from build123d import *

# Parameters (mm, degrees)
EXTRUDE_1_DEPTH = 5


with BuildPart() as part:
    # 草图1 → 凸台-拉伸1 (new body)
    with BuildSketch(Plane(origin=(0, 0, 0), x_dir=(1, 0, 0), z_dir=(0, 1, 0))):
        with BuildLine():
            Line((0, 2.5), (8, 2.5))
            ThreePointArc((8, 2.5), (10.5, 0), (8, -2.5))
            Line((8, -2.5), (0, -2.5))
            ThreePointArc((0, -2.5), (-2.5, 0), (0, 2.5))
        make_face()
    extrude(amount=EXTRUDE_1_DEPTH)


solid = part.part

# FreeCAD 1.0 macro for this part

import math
import FreeCAD as App
import Part
import Sketcher
from FreeCAD import Vector

doc = App.newDocument("Part")
body = doc.addObject("PartDesign::Body", "Body")

# Sketch on XZ plane
sketch1 = body.newObject("Sketcher::SketchObject", "Sketch")
sketch1.AttachmentSupport = (doc.getObject("XZ_Plane"), [""])
sketch1.MapMode = "FlatFace"
sketch1.addGeometry(Part.LineSegment(Vector(8, -2.5, 0), Vector(0, -2.5, 0)), False)
sketch1.addGeometry(Part.ArcOfCircle(Part.Circle(Vector(0, 0, 0), Vector(0, 0, 1), 2.5), math.radians(90), math.radians(270)), False)
sketch1.addGeometry(Part.LineSegment(Vector(0, 2.5, 0), Vector(8, 2.5, 0)), False)
sketch1.addGeometry(Part.ArcOfCircle(Part.Circle(Vector(8, 0, 0), Vector(0, 0, 1), 2.5), math.radians(-90), math.radians(90)), False)
sketch1.addConstraint(Sketcher.Constraint("Tangent", 0, 2, 1, 2))
sketch1.addConstraint(Sketcher.Constraint("Tangent", 1, 1, 2, 1))
sketch1.addConstraint(Sketcher.Constraint("Tangent", 2, 2, 3, 2))
sketch1.addConstraint(Sketcher.Constraint("Tangent", 3, 1, 0, 1))
sketch1.addConstraint(Sketcher.Constraint("Horizontal", 0))
sketch1.addConstraint(Sketcher.Constraint("Horizontal", 2))
sketch1.addConstraint(Sketcher.Constraint("Coincident", 1, 3, -1, 1))
sketch1.addConstraint(Sketcher.Constraint("Radius", 1, 2.5))
sketch1.addConstraint(Sketcher.Constraint("DistanceX", 0, 2, 0, 1, 8.0))
pad1 = body.newObject("PartDesign::Pad", "Pad")
pad1.Profile = sketch1
pad1.Length = 5
pad1.Reversed = True

doc.recompute()
